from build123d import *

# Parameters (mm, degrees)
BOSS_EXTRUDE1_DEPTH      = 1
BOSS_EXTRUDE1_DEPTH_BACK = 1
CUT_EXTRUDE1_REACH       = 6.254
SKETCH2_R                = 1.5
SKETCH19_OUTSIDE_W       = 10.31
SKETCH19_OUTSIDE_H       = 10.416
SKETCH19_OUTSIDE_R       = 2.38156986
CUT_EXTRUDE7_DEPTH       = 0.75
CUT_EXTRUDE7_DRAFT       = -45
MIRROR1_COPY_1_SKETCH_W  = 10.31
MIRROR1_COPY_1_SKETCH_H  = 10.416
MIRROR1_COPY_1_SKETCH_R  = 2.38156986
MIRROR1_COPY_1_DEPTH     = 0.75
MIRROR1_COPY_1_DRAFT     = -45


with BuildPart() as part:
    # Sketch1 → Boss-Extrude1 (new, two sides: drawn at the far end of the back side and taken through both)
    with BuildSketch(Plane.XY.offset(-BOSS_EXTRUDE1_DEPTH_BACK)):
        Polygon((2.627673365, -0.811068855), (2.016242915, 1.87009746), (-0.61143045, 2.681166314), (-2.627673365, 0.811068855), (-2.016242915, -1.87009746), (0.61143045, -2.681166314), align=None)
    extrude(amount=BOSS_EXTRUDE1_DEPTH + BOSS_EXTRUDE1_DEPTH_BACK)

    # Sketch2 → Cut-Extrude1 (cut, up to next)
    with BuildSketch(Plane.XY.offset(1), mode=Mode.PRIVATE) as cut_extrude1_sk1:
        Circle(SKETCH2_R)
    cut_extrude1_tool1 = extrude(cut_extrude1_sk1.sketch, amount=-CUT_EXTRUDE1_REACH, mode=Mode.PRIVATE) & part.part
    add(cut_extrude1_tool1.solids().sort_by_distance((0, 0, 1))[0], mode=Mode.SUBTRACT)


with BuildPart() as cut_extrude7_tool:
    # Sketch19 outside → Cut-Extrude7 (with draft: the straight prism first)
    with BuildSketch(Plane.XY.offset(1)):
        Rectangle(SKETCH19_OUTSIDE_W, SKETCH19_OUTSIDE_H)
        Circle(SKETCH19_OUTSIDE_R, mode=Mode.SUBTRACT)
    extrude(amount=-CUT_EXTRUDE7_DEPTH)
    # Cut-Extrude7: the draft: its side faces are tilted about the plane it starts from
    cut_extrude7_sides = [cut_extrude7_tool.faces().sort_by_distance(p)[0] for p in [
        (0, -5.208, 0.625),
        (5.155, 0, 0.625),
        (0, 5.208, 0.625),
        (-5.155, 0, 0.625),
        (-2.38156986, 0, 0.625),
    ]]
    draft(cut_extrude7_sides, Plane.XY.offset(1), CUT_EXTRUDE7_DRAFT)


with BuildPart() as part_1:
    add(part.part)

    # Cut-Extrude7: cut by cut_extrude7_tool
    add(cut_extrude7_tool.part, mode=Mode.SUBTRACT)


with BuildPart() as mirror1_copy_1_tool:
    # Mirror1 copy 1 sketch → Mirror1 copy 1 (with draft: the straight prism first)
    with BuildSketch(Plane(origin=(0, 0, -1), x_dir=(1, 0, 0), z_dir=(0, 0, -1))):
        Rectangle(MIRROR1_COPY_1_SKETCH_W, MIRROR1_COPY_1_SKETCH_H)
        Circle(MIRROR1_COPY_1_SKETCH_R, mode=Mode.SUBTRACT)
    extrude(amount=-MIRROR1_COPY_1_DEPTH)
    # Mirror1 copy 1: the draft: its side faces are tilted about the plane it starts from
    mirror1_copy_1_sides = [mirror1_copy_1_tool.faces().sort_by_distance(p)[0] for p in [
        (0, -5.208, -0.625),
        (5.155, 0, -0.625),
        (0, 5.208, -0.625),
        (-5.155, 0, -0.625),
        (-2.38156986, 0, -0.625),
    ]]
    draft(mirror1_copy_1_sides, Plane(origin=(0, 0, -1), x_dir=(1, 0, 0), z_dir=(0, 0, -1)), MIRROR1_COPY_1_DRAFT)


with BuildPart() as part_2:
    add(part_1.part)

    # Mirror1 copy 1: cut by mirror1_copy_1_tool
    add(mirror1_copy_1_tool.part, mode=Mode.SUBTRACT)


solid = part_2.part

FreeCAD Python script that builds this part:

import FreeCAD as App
import Part
import Sketcher
from FreeCAD import Vector


def faces_at(feature, points):
    """Names of the faces that lie closest to the given points."""
    faces = feature.Shape.Faces
    near = lambda p: min(range(len(faces)), key=lambda i: faces[i].distToShape(Part.Vertex(*p))[0])
    return sorted({f"Face{near(p) + 1}" for p in points})


def add_polygon(sketch, points):
    """Adds a closed chain of lines whose ends are joined by coincident constraints."""
    first, n = sketch.GeometryCount, len(points)
    for a, b in zip(points, points[1:] + points[:1]):
        sketch.addGeometry(Part.LineSegment(App.Vector(*a, 0), App.Vector(*b, 0)), False)
    for i in range(n):
        sketch.addConstraint(Sketcher.Constraint("Coincident", first + i, 2, first + (i + 1) % n, 1))

doc = App.newDocument("Part")
body = doc.addObject("PartDesign::Body", "Body")

# Sketch on XY plane
sketch1 = body.newObject("Sketcher::SketchObject", "Sketch")
sketch1.AttachmentSupport = (doc.getObject("XY_Plane"), [""])
sketch1.MapMode = "FlatFace"
add_polygon(sketch1, [(2.627673, -0.811069), (2.016243, 1.870097), (-0.61143, 2.681166), (-2.627673, 0.811069), (-2.016243, -1.870097), (0.61143, -2.681166)])  # lines 0-5
sketch1.addConstraint([
    Sketcher.Constraint("Symmetric", 0, 2, 3, 2, -1, 1),
    Sketcher.Constraint("Symmetric", 1, 2, 4, 2, -1, 1),
    Sketcher.Constraint("Symmetric", 2, 2, 5, 2, -1, 1),
    Sketcher.Constraint("Equal", 0, 1),
    Sketcher.Constraint("Equal", 1, 2),
    Sketcher.Constraint("Distance", 0, 2.75),
    Sketcher.Constraint("DistanceX", 1, 2, -1, 1, 0.61143),
    Sketcher.Constraint("DistanceY", -1, 1, 2, 2, 0.811069),
    Sketcher.Constraint("DistanceY", 0, 2, 1, 2, 0.811069),
])
pad1 = body.newObject("PartDesign::Pad", "Pad")
pad1.Profile = sketch1
pad1.Type = "TwoLengths"
pad1.Length = 1
pad1.Length2 = 1

# Sketch on XY plane
sketch2 = body.newObject("Sketcher::SketchObject", "Sketch001")
sketch2.AttachmentSupport = (doc.getObject("XY_Plane"), [""])
sketch2.MapMode = "FlatFace"
sketch2.AttachmentOffset = App.Placement(Vector(0, 0, 1), App.Rotation())
sketch2.addGeometry(Part.Circle(Vector(0, 0, 0), Vector(0, 0, 1), 1.5), False)
sketch2.addConstraint([
    Sketcher.Constraint("Coincident", 0, 3, -1, 1),
    Sketcher.Constraint("Diameter", 0, 3.0),
])
pocket1 = body.newObject("PartDesign::Pocket", "Pocket")
pocket1.Profile = sketch2
pocket1.Type = "UpToFirst"
body2 = doc.addObject("PartDesign::Body", "Body001")

# Sketch on XY plane
sketch3 = body2.newObject("Sketcher::SketchObject", "Sketch002")
sketch3.AttachmentSupport = (doc.getObject("XY_Plane001"), [""])
sketch3.MapMode = "FlatFace"
sketch3.AttachmentOffset = App.Placement(Vector(0, 0, 1), App.Rotation())
add_polygon(sketch3, [(-5.155, 5.208), (-5.155, -5.208), (5.155, -5.208), (5.155, 5.208)])  # lines 0-3
sketch3.addGeometry(Part.Circle(Vector(0, 0, 0), Vector(0, 0, 1), 2.38157), False)  # 4
sketch3.addConstraint([
    Sketcher.Constraint("Vertical", 0),
    Sketcher.Constraint("Horizontal", 1),
    Sketcher.Constraint("Vertical", 2),
    Sketcher.Constraint("Horizontal", 3),
    Sketcher.Constraint("Coincident", 4, 3, -1, 1),
    Sketcher.Constraint("Symmetric", 0, 2, 2, 2, -1, 1),
    Sketcher.Constraint("DistanceX", 1, 1, 1, 2, 10.31),
    Sketcher.Constraint("Diameter", 4, 4.76314),
    Sketcher.Constraint("DistanceY", 0, 2, 0, 1, 10.416),
])
pad2 = body2.newObject("PartDesign::Pad", "Pad001")
pad2.Profile = sketch3
pad2.Length = 0.75
pad2.Reversed = True
doc.recompute()

datumplane = body2.newObject("PartDesign::Plane", "DatumPlane")
datumplane.AttachmentSupport = (doc.getObject("XY_Plane001"), [""])
datumplane.MapMode = "FlatFace"
datumplane.AttachmentOffset = App.Placement(Vector(0, 0, 1), App.Rotation())
draft = body2.newObject("PartDesign::Draft", "Draft")
draft.Base = (pad2, faces_at(pad2, [
    (0, -5.208, 0.625),
    (5.155, 0, 0.625),
    (0, 5.208, 0.625),
    (-5.155, 0, 0.625),
    (-2.382, 0, 0.625),
]))
draft.NeutralPlane = (datumplane, [""])
draft.Angle = 45
draft.Reversed = True
doc.recompute()

boolean = body.newObject("PartDesign::Boolean", "Boolean")
boolean.Type = "Cut"
boolean.addObjects([body2])
body3 = doc.addObject("PartDesign::Body", "Body002")

# Sketch on XY plane
sketch4 = body3.newObject("Sketcher::SketchObject", "Sketch003")
sketch4.AttachmentSupport = (doc.getObject("XY_Plane002"), [""])
sketch4.MapMode = "FlatFace"
sketch4.AttachmentOffset = App.Placement(Vector(0, 0, -1), App.Rotation())
add_polygon(sketch4, [(-5.155, -5.208), (-5.155, 5.208), (5.155, 5.208), (5.155, -5.208)])  # lines 0-3
sketch4.addGeometry(Part.Circle(Vector(0, 0, 0), Vector(0, 0, 1), 2.38157), False)  # 4
sketch4.addConstraint([
    Sketcher.Constraint("Vertical", 0),
    Sketcher.Constraint("Horizontal", 1),
    Sketcher.Constraint("Vertical", 2),
    Sketcher.Constraint("Horizontal", 3),
    Sketcher.Constraint("Coincident", 4, 3, -1, 1),
    Sketcher.Constraint("Symmetric", 0, 2, 2, 2, -1, 1),
    Sketcher.Constraint("DistanceX", 1, 1, 1, 2, 10.31),
    Sketcher.Constraint("Diameter", 4, 4.76314),
    Sketcher.Constraint("DistanceY", 0, 1, 0, 2, 10.416),
])
pad3 = body3.newObject("PartDesign::Pad", "Pad002")
pad3.Profile = sketch4
pad3.Length = 0.75
doc.recompute()

datumplane2 = body3.newObject("PartDesign::Plane", "DatumPlane001")
datumplane2.AttachmentSupport = (doc.getObject("XY_Plane002"), [""])
datumplane2.MapMode = "FlatFace"
datumplane2.AttachmentOffset = App.Placement(Vector(0, 0, -1), App.Rotation())
draft2 = body3.newObject("PartDesign::Draft", "Draft001")
draft2.Base = (pad3, faces_at(pad3, [
    (0, -5.208, -0.625),
    (5.155, 0, -0.625),
    (0, 5.208, -0.625),
    (-5.155, 0, -0.625),
    (-2.382, 0, -0.625),
]))
draft2.NeutralPlane = (datumplane2, [""])
draft2.Angle = 45
draft2.Reversed = False
doc.recompute()

boolean2 = body.newObject("PartDesign::Boolean", "Boolean001")
boolean2.Type = "Cut"
boolean2.addObjects([body3])

doc.recompute()
